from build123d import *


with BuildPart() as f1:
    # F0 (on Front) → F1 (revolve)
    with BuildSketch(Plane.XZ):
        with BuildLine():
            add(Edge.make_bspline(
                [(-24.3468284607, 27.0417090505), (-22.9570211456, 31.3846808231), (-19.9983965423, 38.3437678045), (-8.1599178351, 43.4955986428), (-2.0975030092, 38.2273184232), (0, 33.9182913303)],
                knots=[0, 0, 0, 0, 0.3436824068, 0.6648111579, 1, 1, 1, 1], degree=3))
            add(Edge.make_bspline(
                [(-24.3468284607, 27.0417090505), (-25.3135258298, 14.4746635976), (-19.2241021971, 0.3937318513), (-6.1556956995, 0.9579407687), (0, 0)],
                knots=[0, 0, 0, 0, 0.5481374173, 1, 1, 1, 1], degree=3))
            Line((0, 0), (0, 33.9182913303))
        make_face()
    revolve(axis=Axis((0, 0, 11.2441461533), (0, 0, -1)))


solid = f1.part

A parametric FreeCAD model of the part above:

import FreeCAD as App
import Part
import Sketcher

V = App.Vector

doc = App.newDocument("Part")
params = doc.addObject("Spreadsheet::Sheet", "Params")
for row, (alias, value) in enumerate([
    ("revolution_angle", "360 deg"),
], start=1):
    params.set(f"A{row}", alias)
    params.set(f"B{row}", "=" + value)
    params.setAlias(f"B{row}", alias)

body = doc.addObject("PartDesign::Body", "Body")

sketch1 = body.newObject("Sketcher::SketchObject", "Sketch")
sketch1.AttachmentSupport = (doc.getObject("XZ_Plane"), [""])
sketch1.MapMode = "FlatFace"
sketch1.addGeometry([
    Part.BSplineCurve([V(-24.346828, 27.041709, 0), V(-22.957021, 31.384681, 0), V(-19.998397, 38.343768, 0), V(-8.159918, 43.495599, 0), V(-2.097503, 38.227318, 0), V(0, 33.918291, 0)], [4, 1, 1, 4], [0, 0.343682407, 0.664811158, 1], False, 3, [1, 1, 1, 1, 1, 1], False),
    Part.BSplineCurve([V(-24.346828, 27.041709, 0), V(-25.313526, 14.474664, 0), V(-19.224102, 0.393732, 0), V(-6.155696, 0.957941, 0), V(0, 0, 0)], [4, 1, 4], [0, 0.548137417, 1], False, 3, [1, 1, 1, 1, 1], False),
    Part.LineSegment(V(0, 0, 0), V(0, 33.918291, 0)),
], False)
sketch1.addConstraint([
    Sketcher.Constraint("Block", 0),
    Sketcher.Constraint("Block", 1),
    Sketcher.Constraint("Coincident", 1, 2, 2, 1),
    Sketcher.Constraint("Coincident", 2, 2, 0, 2),
])
revolution = body.newObject("PartDesign::Revolution", "Revolution")
revolution.Profile = sketch1
revolution.ReferenceAxis = (sketch1, ["V_Axis"])
revolution.setExpression("Angle", "Params.revolution_angle")

doc.recompute()
